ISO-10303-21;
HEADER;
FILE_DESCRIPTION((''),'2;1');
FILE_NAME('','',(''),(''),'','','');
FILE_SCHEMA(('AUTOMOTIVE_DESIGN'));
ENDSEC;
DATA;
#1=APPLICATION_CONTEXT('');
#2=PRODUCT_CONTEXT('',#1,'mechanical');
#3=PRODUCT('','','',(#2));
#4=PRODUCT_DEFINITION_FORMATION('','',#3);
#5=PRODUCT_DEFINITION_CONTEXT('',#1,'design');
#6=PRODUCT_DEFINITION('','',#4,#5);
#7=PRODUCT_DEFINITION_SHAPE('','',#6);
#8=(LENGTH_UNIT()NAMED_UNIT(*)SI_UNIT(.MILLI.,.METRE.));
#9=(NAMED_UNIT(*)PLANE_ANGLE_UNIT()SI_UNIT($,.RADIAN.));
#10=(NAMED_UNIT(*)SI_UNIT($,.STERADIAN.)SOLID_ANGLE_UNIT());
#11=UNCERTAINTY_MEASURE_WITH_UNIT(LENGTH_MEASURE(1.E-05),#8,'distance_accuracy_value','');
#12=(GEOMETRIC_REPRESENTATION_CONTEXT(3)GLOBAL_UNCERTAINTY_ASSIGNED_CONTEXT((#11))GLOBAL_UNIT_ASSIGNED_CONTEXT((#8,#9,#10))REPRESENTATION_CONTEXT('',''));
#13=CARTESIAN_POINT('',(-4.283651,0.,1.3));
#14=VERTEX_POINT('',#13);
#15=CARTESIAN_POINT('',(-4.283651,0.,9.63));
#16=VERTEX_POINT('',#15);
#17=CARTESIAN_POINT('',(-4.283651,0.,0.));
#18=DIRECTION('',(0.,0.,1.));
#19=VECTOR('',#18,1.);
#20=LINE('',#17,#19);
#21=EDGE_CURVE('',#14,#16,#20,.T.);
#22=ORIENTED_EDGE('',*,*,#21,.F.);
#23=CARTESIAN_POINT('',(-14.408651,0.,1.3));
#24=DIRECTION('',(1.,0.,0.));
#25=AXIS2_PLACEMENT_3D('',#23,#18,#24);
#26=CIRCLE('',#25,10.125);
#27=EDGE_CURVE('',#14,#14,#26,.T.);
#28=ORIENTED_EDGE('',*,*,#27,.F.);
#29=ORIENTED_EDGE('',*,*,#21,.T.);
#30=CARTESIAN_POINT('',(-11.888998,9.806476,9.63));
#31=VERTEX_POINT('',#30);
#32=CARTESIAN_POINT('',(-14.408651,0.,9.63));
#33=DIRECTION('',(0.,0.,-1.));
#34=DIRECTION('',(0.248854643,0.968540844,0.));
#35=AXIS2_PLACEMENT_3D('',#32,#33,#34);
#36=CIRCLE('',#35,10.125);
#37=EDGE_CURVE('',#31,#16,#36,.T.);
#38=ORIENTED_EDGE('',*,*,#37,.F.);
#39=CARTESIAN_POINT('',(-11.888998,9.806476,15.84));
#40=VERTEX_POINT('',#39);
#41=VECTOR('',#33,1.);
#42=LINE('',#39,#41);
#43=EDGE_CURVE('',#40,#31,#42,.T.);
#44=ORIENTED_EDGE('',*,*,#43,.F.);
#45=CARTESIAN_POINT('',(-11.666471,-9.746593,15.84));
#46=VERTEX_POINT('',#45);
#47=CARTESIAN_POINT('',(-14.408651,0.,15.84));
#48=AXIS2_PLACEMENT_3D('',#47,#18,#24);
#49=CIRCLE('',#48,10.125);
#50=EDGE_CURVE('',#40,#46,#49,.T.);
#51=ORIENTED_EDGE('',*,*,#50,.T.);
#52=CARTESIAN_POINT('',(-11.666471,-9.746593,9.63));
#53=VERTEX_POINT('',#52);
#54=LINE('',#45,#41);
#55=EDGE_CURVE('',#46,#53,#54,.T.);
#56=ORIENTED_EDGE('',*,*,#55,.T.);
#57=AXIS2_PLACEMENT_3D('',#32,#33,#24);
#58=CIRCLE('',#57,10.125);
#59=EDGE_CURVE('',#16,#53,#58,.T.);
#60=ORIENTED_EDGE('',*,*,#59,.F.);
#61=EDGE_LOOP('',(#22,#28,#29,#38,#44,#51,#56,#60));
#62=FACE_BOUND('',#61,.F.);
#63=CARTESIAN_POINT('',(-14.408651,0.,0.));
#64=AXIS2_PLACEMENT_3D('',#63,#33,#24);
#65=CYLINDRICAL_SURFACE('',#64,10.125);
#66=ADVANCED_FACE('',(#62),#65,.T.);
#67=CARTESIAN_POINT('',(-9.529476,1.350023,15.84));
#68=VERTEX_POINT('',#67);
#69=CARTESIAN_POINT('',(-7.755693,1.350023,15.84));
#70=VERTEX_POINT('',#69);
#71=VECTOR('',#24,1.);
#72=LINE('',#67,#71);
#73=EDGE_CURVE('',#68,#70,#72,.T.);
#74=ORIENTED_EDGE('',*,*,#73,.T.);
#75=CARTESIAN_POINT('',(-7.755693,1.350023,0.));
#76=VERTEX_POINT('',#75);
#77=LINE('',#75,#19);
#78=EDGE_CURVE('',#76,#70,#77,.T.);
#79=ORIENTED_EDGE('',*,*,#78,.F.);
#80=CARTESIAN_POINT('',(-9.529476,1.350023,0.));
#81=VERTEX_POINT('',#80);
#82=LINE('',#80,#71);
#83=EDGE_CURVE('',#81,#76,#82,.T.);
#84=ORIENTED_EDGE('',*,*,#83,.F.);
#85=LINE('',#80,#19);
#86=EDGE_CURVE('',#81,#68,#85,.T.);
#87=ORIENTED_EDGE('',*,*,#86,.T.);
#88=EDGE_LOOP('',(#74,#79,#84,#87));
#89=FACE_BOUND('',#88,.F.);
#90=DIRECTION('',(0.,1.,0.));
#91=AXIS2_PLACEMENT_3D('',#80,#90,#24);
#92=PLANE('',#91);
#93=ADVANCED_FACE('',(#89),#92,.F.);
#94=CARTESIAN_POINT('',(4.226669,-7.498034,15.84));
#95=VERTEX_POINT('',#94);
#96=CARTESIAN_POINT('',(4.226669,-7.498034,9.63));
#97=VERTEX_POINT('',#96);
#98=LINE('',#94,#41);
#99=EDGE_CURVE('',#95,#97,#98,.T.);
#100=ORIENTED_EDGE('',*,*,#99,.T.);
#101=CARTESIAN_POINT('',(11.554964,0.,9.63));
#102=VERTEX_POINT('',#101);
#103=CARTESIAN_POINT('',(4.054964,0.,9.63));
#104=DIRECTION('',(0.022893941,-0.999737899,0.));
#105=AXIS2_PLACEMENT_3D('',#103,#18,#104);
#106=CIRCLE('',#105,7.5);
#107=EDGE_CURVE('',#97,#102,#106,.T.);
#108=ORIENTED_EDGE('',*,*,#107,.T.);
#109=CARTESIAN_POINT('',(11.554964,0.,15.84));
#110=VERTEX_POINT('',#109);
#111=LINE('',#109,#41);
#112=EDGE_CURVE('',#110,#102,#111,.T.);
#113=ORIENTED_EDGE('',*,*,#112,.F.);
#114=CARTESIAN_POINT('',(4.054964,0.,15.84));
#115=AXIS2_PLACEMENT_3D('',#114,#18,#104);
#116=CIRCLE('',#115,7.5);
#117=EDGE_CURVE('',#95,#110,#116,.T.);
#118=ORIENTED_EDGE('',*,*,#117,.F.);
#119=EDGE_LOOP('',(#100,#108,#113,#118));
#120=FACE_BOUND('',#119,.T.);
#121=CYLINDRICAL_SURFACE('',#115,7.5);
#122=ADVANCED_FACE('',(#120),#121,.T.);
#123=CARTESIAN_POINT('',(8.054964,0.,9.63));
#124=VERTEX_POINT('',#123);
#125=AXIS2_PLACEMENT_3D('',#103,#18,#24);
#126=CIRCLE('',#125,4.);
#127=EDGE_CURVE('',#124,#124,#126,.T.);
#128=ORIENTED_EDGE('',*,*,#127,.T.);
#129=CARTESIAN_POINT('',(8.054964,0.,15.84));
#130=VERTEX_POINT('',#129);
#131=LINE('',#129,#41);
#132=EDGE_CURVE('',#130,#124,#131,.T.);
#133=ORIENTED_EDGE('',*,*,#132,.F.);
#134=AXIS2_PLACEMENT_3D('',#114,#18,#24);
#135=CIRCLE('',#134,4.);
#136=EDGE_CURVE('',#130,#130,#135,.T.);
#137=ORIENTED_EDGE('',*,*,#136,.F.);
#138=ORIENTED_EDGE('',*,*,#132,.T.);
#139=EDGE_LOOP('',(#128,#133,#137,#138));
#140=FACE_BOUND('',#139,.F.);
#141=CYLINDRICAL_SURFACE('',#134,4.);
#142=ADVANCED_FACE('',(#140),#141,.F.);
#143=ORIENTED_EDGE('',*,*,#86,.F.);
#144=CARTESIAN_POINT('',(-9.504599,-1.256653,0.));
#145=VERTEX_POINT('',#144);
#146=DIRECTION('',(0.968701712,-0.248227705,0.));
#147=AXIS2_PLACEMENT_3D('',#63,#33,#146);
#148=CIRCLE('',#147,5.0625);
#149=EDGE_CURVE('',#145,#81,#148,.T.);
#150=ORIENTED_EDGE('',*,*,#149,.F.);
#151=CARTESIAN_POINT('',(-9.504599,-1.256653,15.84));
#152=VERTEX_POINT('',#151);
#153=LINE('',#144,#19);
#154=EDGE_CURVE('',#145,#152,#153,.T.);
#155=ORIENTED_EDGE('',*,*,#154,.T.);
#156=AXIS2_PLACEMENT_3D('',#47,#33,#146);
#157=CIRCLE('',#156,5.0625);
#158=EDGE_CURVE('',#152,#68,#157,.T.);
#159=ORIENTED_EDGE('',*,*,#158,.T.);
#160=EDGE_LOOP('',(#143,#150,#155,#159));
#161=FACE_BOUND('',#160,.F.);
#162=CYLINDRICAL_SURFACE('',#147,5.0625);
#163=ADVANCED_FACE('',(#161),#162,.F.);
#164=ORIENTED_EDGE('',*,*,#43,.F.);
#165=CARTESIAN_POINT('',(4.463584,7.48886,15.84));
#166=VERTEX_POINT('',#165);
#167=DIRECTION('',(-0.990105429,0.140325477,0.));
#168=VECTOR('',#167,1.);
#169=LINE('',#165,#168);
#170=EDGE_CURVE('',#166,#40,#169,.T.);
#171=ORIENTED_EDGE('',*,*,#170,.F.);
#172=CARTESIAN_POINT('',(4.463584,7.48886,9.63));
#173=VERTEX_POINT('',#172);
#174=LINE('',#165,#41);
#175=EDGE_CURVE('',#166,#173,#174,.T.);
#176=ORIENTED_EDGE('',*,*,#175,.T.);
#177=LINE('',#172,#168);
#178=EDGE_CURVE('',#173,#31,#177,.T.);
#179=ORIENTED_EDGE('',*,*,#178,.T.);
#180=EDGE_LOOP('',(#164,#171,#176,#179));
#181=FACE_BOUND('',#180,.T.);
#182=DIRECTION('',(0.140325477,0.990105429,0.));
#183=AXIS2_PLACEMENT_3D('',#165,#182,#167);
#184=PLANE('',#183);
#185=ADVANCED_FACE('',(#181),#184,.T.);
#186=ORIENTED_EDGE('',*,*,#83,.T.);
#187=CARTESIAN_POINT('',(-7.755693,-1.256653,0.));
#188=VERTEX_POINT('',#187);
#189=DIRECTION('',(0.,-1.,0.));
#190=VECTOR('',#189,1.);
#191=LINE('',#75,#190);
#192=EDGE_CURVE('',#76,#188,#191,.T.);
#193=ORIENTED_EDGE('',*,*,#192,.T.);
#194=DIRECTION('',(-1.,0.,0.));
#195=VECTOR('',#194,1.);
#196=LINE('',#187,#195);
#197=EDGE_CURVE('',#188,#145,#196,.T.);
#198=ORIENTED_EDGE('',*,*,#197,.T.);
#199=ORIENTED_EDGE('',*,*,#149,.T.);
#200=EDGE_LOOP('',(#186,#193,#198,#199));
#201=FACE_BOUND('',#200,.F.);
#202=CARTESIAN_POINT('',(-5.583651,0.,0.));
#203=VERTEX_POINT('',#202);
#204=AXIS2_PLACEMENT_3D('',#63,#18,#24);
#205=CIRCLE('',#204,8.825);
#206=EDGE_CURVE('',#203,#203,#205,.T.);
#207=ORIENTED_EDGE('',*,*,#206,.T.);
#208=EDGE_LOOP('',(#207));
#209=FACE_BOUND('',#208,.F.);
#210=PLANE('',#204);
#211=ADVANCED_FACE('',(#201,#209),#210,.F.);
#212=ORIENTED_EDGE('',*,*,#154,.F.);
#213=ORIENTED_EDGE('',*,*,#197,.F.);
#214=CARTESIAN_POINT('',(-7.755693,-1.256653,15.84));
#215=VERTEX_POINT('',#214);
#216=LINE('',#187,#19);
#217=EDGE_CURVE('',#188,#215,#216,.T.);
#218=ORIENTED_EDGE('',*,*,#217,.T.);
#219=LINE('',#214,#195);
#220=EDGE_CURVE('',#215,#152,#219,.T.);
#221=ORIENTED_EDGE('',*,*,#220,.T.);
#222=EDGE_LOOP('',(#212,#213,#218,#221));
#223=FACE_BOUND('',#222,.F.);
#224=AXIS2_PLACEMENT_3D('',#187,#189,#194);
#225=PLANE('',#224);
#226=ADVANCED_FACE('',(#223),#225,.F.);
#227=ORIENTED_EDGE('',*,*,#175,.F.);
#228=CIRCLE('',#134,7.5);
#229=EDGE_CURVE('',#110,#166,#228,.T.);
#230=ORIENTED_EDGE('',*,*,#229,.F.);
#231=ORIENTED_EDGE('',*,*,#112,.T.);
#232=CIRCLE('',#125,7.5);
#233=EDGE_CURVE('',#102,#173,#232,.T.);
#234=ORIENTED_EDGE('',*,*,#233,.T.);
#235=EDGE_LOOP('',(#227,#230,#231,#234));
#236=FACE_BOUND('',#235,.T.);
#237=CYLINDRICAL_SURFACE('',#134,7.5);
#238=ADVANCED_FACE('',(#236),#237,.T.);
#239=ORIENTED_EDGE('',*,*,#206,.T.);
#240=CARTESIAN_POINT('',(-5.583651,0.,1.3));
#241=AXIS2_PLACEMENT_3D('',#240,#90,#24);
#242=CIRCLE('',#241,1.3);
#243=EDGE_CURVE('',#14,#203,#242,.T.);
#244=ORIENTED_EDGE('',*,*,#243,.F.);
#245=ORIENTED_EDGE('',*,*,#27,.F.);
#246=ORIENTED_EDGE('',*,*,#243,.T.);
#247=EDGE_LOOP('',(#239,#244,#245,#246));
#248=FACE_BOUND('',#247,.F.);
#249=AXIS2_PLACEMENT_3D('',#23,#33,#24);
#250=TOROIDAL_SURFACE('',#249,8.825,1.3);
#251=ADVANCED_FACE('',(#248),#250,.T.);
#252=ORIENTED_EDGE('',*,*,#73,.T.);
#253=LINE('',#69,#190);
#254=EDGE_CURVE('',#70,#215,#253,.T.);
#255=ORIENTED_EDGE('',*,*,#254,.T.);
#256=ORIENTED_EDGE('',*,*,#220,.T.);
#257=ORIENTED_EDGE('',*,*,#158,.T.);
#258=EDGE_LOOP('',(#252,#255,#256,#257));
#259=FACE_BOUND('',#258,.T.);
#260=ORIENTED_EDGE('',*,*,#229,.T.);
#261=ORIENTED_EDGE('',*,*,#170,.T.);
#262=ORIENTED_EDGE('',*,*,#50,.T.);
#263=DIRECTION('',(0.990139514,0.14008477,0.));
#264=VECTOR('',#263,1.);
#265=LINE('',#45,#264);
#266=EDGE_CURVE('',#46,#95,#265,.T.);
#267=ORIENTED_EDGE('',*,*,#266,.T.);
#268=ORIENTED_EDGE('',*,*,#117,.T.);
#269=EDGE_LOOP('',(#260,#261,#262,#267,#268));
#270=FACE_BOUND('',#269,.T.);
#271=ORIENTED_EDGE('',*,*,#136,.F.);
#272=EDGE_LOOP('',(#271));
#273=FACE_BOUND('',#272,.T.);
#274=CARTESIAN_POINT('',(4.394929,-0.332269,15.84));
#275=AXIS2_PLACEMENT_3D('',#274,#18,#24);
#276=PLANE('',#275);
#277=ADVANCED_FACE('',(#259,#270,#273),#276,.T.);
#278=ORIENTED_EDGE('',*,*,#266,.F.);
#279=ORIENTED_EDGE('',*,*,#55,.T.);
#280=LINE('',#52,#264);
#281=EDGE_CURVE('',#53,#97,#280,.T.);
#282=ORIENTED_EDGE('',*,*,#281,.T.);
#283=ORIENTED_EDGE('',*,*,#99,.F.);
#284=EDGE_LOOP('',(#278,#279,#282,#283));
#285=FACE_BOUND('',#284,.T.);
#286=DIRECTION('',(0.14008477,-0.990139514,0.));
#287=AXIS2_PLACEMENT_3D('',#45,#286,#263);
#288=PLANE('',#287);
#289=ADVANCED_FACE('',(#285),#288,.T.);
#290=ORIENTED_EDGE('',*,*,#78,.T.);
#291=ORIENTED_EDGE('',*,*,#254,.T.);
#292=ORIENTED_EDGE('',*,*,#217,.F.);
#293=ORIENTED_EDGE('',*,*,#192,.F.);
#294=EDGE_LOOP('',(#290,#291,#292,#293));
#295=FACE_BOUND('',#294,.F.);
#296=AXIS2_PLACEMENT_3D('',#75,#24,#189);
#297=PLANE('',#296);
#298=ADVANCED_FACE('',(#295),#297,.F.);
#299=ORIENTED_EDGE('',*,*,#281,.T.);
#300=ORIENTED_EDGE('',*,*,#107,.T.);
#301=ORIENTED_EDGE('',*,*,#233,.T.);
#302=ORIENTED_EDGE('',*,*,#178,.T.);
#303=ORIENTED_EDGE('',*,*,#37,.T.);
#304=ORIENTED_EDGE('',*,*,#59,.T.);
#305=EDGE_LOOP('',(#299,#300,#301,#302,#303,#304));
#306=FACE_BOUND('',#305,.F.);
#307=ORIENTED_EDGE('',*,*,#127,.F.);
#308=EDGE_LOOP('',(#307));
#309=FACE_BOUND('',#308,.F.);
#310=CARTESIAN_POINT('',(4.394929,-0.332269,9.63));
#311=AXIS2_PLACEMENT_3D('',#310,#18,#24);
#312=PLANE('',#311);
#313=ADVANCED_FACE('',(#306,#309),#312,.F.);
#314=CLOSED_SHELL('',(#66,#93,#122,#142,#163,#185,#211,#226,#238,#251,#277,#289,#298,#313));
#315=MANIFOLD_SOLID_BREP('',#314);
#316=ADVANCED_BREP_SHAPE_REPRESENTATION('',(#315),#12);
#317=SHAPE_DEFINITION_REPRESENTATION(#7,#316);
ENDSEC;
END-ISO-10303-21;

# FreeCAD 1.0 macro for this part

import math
import FreeCAD as App
import Part
import Sketcher
from FreeCAD import Vector
Q = App.Units.Quantity


def edges_at(feature, points):
    """Names of the edges that pass closest to the given points."""
    edges = feature.Shape.Edges
    near = lambda p: min(range(len(edges)), key=lambda i: edges[i].distToShape(Part.Vertex(*p))[0])
    return sorted({f"Edge{near(p) + 1}" for p in points})

doc = App.newDocument("Part")
body = doc.addObject("PartDesign::Body", "Body")

# Sketch on XY plane
sketch1 = body.newObject("Sketcher::SketchObject", "Sketch")
sketch1.AttachmentSupport = (doc.getObject("XY_Plane"), [""])
sketch1.MapMode = "FlatFace"
sketch1.addGeometry([
    Part.Circle(Vector(-14.4, 0, 0), Vector(0, 0, 1), 10.1),  # 0
    Part.LineSegment(Vector(-7.8, -1.3, 0), Vector(-9.5, -1.3, 0)),  # 1
    Part.ArcOfCircle(Part.Circle(Vector(-14.4, 0, 0), Vector(0, 0, 1), 5.1), math.radians(15), math.radians(346)),  # 2
    Part.LineSegment(Vector(-9.5, 1.4, 0), Vector(-7.8, 1.4, 0)),  # 3
    Part.LineSegment(Vector(-7.8, 1.4, 0), Vector(-7.8, -1.3, 0)),  # 4
], False)
sketch1.addConstraint([
    Sketcher.Constraint("Coincident", 1, 2, 2, 2),
    Sketcher.Constraint("Coincident", 2, 1, 3, 1),
    Sketcher.Constraint("Coincident", 3, 2, 4, 1),
    Sketcher.Constraint("Coincident", 4, 2, 1, 1),
    Sketcher.Constraint("Horizontal", 1),
    Sketcher.Constraint("Horizontal", 3),
    Sketcher.Constraint("Vertical", 4),
    Sketcher.Constraint("Coincident", 2, 3, 0, 3),
    Sketcher.Constraint("PointOnObject", 0, 3, -1),
    Sketcher.Constraint("Diameter", 0, Q("20.25 mm")),
    Sketcher.Constraint("Radius", 2, Q("5.0625 mm")),
    Sketcher.Constraint("DistanceX", 1, 2, -1, 1, Q("9.504599 mm")),
    Sketcher.Constraint("DistanceX", 1, 2, 1, 1, Q("1.748906 mm")),
    Sketcher.Constraint("DistanceX", 3, 1, 3, 2, Q("1.773784 mm")),
    Sketcher.Constraint("DistanceY", 4, 2, 4, 1, Q("2.606676 mm")),
])
pad1 = body.newObject("PartDesign::Pad", "Pad")
pad1.Profile = sketch1
pad1.Length = 15.84

# Sketch on XY plane
sketch2 = body.newObject("Sketcher::SketchObject", "Sketch001")
sketch2.AttachmentSupport = (doc.getObject("XY_Plane"), [""])
sketch2.MapMode = "FlatFace"
sketch2.AttachmentOffset = App.Placement(Vector(0, 0, 15.84), App.Rotation())
sketch2.addGeometry([
    Part.ArcOfCircle(Part.Circle(Vector(4.1, 0, 0), Vector(0, 0, 1), 7.5), math.radians(-89), math.radians(0)),  # 0
    Part.ArcOfCircle(Part.Circle(Vector(4.1, 0, 0), Vector(0, 0, 1), 7.5), math.radians(0), math.radians(87)),  # 1
    Part.LineSegment(Vector(4.5, 7.5, 0), Vector(-11.9, 9.8, 0)),  # 2
    Part.ArcOfCircle(Part.Circle(Vector(-14.4, 0, 0), Vector(0, 0, 1), 10.1), math.radians(0), math.radians(76)),  # 3
    Part.ArcOfCircle(Part.Circle(Vector(-14.4, 0, 0), Vector(0, 0, 1), 10.1), math.radians(-74), math.radians(0)),  # 4
    Part.LineSegment(Vector(-11.7, -9.7, 0), Vector(4.2, -7.5, 0)),  # 5
    Part.Circle(Vector(4.1, 0, 0), Vector(0, 0, 1), 4),  # 6
], False)
sketch2.addConstraint([
    Sketcher.Constraint("Tangent", 0, 2, 1, 1),
    Sketcher.Constraint("Coincident", 1, 2, 2, 1),
    Sketcher.Constraint("Coincident", 2, 2, 3, 2),
    Sketcher.Constraint("Tangent", 3, 1, 4, 2),
    Sketcher.Constraint("Coincident", 4, 1, 5, 1),
    Sketcher.Constraint("Coincident", 5, 2, 0, 1),
    Sketcher.Constraint("Coincident", 6, 3, 0, 3),
    Sketcher.Constraint("Equal", 0, 1),
    Sketcher.Constraint("Equal", 3, 4),
    Sketcher.Constraint("PointOnObject", 0, 3, -1),
    Sketcher.Constraint("PointOnObject", 3, 3, -1),
    Sketcher.Constraint("PointOnObject", 0, 2, -1),
    Sketcher.Constraint("PointOnObject", 3, 1, -1),
    Sketcher.Constraint("Diameter", 6, Q("8 mm")),
    Sketcher.Constraint("Radius", 0, Q("7.5 mm")),
    Sketcher.Constraint("Radius", 3, Q("10.125 mm")),
    Sketcher.Constraint("Distance", 2, Q("16.516001 mm")),
    Sketcher.Constraint("DistanceX", 3, 3, -1, 1, Q("14.408651 mm")),
    Sketcher.Constraint("DistanceY", -1, 1, 1, 2, Q("7.48886 mm")),
    Sketcher.Constraint("DistanceX", 4, 1, -1, 1, Q("11.666471 mm")),
    Sketcher.Constraint("DistanceX", -1, 1, 5, 2, Q("4.226669 mm")),
    Sketcher.Constraint("DistanceX", 2, 2, 1, 2, Q("16.352582 mm")),
])
pad2 = body.newObject("PartDesign::Pad", "Pad001")
pad2.Profile = sketch2
pad2.Length = 6.21
pad2.Reversed = True
doc.recompute()

fillet = body.newObject("PartDesign::Fillet", "Fillet")
fillet.Base = (pad2, edges_at(pad2, [(-24.534, 0, 0)]))
fillet.Radius = 1.3

doc.recompute()
